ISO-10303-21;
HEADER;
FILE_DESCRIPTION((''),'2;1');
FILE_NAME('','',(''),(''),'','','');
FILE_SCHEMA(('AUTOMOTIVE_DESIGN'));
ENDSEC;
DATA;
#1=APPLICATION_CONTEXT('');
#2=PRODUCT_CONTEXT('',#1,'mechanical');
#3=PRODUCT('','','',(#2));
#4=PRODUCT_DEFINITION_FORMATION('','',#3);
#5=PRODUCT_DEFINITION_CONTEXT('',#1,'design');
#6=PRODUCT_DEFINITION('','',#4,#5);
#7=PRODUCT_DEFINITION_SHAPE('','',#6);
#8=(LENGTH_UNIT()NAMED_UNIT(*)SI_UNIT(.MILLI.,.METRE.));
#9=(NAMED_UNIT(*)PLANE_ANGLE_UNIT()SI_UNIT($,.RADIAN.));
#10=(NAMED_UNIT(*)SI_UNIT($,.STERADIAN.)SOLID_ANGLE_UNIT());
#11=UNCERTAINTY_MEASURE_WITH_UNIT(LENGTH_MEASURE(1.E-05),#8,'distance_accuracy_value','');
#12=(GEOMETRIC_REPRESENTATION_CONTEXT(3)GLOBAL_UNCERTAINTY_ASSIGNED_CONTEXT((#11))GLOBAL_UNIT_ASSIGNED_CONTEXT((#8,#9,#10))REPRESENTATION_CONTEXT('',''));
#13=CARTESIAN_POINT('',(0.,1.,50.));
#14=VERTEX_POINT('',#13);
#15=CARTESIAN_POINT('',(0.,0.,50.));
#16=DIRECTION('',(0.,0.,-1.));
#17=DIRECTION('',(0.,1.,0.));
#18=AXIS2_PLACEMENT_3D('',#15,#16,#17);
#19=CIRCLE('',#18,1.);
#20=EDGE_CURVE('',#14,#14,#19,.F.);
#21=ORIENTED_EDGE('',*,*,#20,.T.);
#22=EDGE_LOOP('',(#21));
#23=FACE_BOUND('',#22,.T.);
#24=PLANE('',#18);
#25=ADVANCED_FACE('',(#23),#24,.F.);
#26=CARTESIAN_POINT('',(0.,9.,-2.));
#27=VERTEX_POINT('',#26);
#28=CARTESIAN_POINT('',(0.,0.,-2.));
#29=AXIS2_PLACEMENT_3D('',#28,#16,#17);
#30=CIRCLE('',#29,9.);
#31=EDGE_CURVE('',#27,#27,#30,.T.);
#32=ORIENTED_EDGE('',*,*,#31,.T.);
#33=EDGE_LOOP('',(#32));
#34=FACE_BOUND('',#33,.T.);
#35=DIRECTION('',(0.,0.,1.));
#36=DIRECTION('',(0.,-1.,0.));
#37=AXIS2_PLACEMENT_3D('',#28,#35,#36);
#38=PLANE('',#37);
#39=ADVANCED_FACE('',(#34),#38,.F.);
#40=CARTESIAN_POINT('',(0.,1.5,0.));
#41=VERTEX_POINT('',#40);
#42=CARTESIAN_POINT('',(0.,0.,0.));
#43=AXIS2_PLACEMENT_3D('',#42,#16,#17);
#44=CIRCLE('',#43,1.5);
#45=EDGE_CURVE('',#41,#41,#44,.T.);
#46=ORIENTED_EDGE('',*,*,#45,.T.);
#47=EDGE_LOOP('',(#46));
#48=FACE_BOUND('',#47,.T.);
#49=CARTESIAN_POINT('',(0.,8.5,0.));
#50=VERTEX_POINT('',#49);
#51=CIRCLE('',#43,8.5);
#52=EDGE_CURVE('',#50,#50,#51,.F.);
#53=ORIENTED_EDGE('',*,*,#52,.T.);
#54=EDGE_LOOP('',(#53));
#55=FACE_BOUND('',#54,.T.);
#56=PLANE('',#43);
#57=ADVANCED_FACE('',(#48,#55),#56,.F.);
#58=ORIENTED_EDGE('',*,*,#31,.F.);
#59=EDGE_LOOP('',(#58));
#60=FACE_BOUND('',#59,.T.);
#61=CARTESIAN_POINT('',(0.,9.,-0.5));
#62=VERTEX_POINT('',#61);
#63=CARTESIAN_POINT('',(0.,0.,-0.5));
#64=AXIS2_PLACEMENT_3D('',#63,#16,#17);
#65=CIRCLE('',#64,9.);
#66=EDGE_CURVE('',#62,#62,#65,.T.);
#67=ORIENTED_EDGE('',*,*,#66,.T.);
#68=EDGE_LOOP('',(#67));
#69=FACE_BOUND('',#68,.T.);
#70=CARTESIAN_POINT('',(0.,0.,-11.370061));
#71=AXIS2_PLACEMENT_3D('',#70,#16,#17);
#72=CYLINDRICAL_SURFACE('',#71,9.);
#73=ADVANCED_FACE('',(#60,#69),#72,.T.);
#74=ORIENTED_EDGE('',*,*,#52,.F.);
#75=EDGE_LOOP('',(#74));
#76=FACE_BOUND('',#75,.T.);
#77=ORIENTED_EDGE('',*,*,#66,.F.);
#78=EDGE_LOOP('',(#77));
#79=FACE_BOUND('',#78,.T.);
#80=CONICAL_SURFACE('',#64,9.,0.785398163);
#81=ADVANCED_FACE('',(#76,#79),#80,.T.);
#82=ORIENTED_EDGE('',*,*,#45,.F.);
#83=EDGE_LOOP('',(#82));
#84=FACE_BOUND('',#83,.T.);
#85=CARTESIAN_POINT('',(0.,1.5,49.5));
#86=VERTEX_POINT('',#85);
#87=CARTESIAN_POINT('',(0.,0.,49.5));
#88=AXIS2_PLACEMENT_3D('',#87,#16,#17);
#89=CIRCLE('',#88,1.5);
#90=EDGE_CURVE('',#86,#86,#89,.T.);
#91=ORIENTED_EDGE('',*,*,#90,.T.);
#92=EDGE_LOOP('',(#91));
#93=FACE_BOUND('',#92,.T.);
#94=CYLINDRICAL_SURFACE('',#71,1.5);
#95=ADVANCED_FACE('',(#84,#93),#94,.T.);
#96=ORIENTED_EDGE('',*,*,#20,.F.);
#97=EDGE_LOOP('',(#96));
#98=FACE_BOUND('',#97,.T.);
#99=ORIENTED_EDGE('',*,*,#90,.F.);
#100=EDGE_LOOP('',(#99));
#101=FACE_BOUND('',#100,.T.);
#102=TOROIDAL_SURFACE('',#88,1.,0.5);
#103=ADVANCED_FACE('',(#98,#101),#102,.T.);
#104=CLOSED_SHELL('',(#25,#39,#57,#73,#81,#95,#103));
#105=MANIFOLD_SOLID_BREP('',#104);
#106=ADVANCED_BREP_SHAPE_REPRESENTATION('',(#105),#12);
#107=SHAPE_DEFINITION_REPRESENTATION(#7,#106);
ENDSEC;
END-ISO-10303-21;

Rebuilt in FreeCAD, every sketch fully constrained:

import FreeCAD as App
import Part
import Sketcher
Q = App.Units.Quantity


def edges_at(feature, points):
    """Names of the edges that pass closest to the given points."""
    edges = feature.Shape.Edges
    near = lambda p: min(range(len(edges)), key=lambda i: edges[i].distToShape(Part.Vertex(*p))[0])
    return sorted({f"Edge{near(p) + 1}" for p in points})


def add_polygon(sketch, points):
    """Adds a closed chain of lines whose ends are joined by coincident constraints."""
    first, n = sketch.GeometryCount, len(points)
    for a, b in zip(points, points[1:] + points[:1]):
        sketch.addGeometry(Part.LineSegment(App.Vector(*a, 0), App.Vector(*b, 0)), False)
    for i in range(n):
        sketch.addConstraint(Sketcher.Constraint("Coincident", first + i, 2, first + (i + 1) % n, 1))

doc = App.newDocument("Part")
body = doc.addObject("PartDesign::Body", "Body")

# Sketch on YZ plane
sketch1 = doc.addObject("Sketcher::SketchObject", "Sketch")
body.addObject(sketch1)
sketch1.AttachmentSupport = (doc.YZ_Plane, [""])
sketch1.MapMode = "FlatFace"
add_polygon(sketch1, [(0, 50), (0, -2), (9, -2), (9, 0), (1.5, 0), (1.5, 50)])  # lines 0-5
sketch1.addConstraint(Sketcher.Constraint("Vertical", 0))
sketch1.addConstraint(Sketcher.Constraint("Horizontal", 1))
sketch1.addConstraint(Sketcher.Constraint("Vertical", 2))
sketch1.addConstraint(Sketcher.Constraint("Horizontal", 3))
sketch1.addConstraint(Sketcher.Constraint("Vertical", 4))
sketch1.addConstraint(Sketcher.Constraint("Horizontal", 5))
sketch1.addConstraint(Sketcher.Constraint("PointOnObject", 0, 2, -2))
sketch1.addConstraint(Sketcher.Constraint("PointOnObject", 2, 2, -1))
sketch1.addConstraint(Sketcher.Constraint("DistanceX", 1, 1, 1, 2, Q("9 mm")))
sketch1.addConstraint(Sketcher.Constraint("DistanceY", 0, 2, 0, 1, Q("52 mm")))
sketch1.addConstraint(Sketcher.Constraint("DistanceY", 2, 1, 2, 2, Q("2 mm")))
sketch1.addConstraint(Sketcher.Constraint("DistanceX", 3, 2, 3, 1, Q("7.5 mm")))
revolution = doc.addObject("PartDesign::Revolution", "Revolution")
body.addObject(revolution)
revolution.Profile = sketch1
revolution.ReferenceAxis = (sketch1, ["V_Axis"])
revolution.Angle = 360
doc.recompute()

fillet = doc.addObject("PartDesign::Fillet", "Fillet")
body.addObject(fillet)
fillet.Base = (revolution, edges_at(revolution, [(0, -1.5, 50)]))
fillet.Radius = 0.5
doc.recompute()

chamfer = doc.addObject("PartDesign::Chamfer", "Chamfer")
body.addObject(chamfer)
chamfer.Base = (fillet, edges_at(fillet, [(0, -9, 0)]))
chamfer.Size = 0.5

doc.recompute()
